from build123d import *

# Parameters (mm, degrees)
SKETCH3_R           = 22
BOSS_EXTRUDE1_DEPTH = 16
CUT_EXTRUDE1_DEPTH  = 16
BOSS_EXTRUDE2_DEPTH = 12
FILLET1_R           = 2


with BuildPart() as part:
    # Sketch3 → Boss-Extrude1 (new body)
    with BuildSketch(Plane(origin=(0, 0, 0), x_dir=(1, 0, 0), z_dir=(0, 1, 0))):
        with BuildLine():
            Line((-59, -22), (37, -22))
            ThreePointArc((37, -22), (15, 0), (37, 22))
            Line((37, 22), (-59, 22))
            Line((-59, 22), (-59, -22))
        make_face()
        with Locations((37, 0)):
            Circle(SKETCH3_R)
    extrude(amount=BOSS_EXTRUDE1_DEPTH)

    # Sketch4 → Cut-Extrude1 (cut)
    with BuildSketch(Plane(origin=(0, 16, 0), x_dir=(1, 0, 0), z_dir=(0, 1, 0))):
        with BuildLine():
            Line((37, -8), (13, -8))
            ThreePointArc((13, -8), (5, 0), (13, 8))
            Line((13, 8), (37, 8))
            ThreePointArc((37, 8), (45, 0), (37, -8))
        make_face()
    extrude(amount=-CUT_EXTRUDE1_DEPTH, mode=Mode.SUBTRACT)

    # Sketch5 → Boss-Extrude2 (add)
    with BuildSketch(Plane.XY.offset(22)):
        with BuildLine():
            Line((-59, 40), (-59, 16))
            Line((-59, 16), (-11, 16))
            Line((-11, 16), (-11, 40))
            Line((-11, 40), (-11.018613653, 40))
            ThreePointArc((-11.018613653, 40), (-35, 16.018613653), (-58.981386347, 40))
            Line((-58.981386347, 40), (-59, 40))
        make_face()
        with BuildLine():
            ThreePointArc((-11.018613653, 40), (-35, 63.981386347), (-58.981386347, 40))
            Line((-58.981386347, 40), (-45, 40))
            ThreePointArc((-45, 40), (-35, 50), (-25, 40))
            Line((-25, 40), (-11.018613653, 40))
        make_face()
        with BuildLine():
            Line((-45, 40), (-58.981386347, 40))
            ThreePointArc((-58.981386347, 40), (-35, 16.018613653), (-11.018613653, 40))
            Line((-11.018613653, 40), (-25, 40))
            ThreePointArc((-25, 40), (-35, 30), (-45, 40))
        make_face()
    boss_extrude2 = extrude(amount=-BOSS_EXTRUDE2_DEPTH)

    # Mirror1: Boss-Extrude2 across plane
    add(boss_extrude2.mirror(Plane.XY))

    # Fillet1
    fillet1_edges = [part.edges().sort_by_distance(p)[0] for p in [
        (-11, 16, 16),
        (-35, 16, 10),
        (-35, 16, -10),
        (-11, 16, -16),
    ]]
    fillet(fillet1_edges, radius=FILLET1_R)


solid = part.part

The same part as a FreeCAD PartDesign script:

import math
import FreeCAD as App
import Part
import Sketcher

V = App.Vector


def edges_at(feature, points):
    """Names of the edges that pass closest to the given points."""
    edges = feature.Shape.Edges
    near = lambda p: min(range(len(edges)), key=lambda i: edges[i].distToShape(Part.Vertex(*p))[0])
    return sorted({f"Edge{near(p) + 1}" for p in points})

doc = App.newDocument("Part")
body = doc.addObject("PartDesign::Body", "Body")

# Sketch on XZ plane
sketch1 = doc.addObject("Sketcher::SketchObject", "Sketch")
body.addObject(sketch1)
sketch1.AttachmentSupport = (doc.XZ_Plane, [""])
sketch1.MapMode = "FlatFace"
sketch1.addGeometry([
    Part.LineSegment(V(-59, 22, 0), V(37, 22, 0)),
    Part.ArcOfCircle(Part.Circle(V(37, 0, 0), V(0, 0, 1), 22), math.radians(-90), math.radians(90)),
    Part.LineSegment(V(37, -22, 0), V(-59, -22, 0)),
    Part.LineSegment(V(-59, -22, 0), V(-59, 22, 0)),
], False)
sketch1.addConstraint([
    Sketcher.Constraint("Tangent", 0, 2, 1, 2),
    Sketcher.Constraint("Tangent", 1, 1, 2, 1),
    Sketcher.Constraint("Coincident", 2, 2, 3, 1),
    Sketcher.Constraint("Coincident", 3, 2, 0, 1),
    Sketcher.Constraint("Horizontal", 0),
    Sketcher.Constraint("Horizontal", 2),
    Sketcher.Constraint("Vertical", 3),
    Sketcher.Constraint("PointOnObject", 1, 3, -1),
    Sketcher.Constraint("Radius", 1, 22.0),
    Sketcher.Constraint("DistanceX", 0, 1, 0, 2, 96.0),
    Sketcher.Constraint("DistanceX", -1, 1, 1, 3, 37.0),
])
pad1 = doc.addObject("PartDesign::Pad", "Pad")
body.addObject(pad1)
pad1.Profile = sketch1
pad1.Length = 16
pad1.Reversed = True

# Sketch on XZ plane
sketch2 = doc.addObject("Sketcher::SketchObject", "Sketch001")
body.addObject(sketch2)
sketch2.AttachmentSupport = (doc.XZ_Plane, [""])
sketch2.MapMode = "FlatFace"
sketch2.AttachmentOffset = App.Placement(V(0, 0, -16), App.Rotation())
sketch2.addGeometry([
    Part.LineSegment(V(13, 8, 0), V(37, 8, 0)),
    Part.ArcOfCircle(Part.Circle(V(37, 0, 0), V(0, 0, 1), 8), math.radians(-90), math.radians(90)),
    Part.LineSegment(V(37, -8, 0), V(13, -8, 0)),
    Part.ArcOfCircle(Part.Circle(V(13, 0, 0), V(0, 0, 1), 8), math.radians(90), math.radians(270)),
], False)
sketch2.addConstraint([
    Sketcher.Constraint("Tangent", 0, 2, 1, 2),
    Sketcher.Constraint("Tangent", 1, 1, 2, 1),
    Sketcher.Constraint("Tangent", 2, 2, 3, 2),
    Sketcher.Constraint("Tangent", 3, 1, 0, 1),
    Sketcher.Constraint("Horizontal", 0),
    Sketcher.Constraint("Horizontal", 2),
    Sketcher.Constraint("PointOnObject", 1, 3, -1),
    Sketcher.Constraint("Radius", 1, 8.0),
    Sketcher.Constraint("DistanceX", 0, 1, 0, 2, 24.0),
    Sketcher.Constraint("DistanceX", -1, 1, 1, 3, 37.0),
])
pocket1 = doc.addObject("PartDesign::Pocket", "Pocket")
body.addObject(pocket1)
pocket1.Profile = sketch2
pocket1.Length = 16
pocket1.Reversed = True

# Sketch on XY plane
sketch3 = doc.addObject("Sketcher::SketchObject", "Sketch002")
body.addObject(sketch3)
sketch3.AttachmentSupport = (doc.XY_Plane, [""])
sketch3.MapMode = "FlatFace"
sketch3.AttachmentOffset = App.Placement(V(0, 0, 22), App.Rotation())
sketch3.addGeometry([
    Part.LineSegment(V(-11, 40, 0), V(-11.018614, 40, 0)),  # 0
    Part.ArcOfCircle(Part.Circle(V(-35, 40, 0), V(0, 0, 1), 23.981386), math.radians(0), math.radians(180)),  # 1
    Part.LineSegment(V(-58.981386, 40, 0), V(-59, 40, 0)),  # 2
    Part.LineSegment(V(-59, 40, 0), V(-59, 16, 0)),  # 3
    Part.LineSegment(V(-59, 16, 0), V(-11, 16, 0)),  # 4
    Part.LineSegment(V(-11, 16, 0), V(-11, 40, 0)),  # 5
    Part.Circle(V(-35, 40, 0), V(0, 0, 1), 10),  # 6
], False)
sketch3.addConstraint([
    Sketcher.Constraint("Coincident", 0, 2, 1, 1),
    Sketcher.Constraint("Coincident", 1, 2, 2, 1),
    Sketcher.Constraint("Coincident", 2, 2, 3, 1),
    Sketcher.Constraint("Coincident", 3, 2, 4, 1),
    Sketcher.Constraint("Coincident", 4, 2, 5, 1),
    Sketcher.Constraint("Coincident", 5, 2, 0, 1),
    Sketcher.Constraint("Horizontal", 0),
    Sketcher.Constraint("Horizontal", 2),
    Sketcher.Constraint("Vertical", 3),
    Sketcher.Constraint("Horizontal", 4),
    Sketcher.Constraint("Vertical", 5),
    Sketcher.Constraint("Coincident", 6, 3, 1, 3),
    Sketcher.Constraint("Horizontal", 6, 3, 0, 2),
    Sketcher.Constraint("Horizontal", 0, 2, 1, 2),
    Sketcher.Constraint("Equal", 0, 2),
    Sketcher.Constraint("Diameter", 6, 20.0),
    Sketcher.Constraint("DistanceX", 4, 1, 4, 2, 48.0),
    Sketcher.Constraint("DistanceY", 3, 2, 3, 1, 24.0),
    Sketcher.Constraint("DistanceX", 1, 3, -1, 1, 35.0),
    Sketcher.Constraint("DistanceY", -1, 1, 1, 3, 40.0),
    Sketcher.Constraint("Radius", 1, 23.981386),
])
pad2 = doc.addObject("PartDesign::Pad", "Pad001")
body.addObject(pad2)
pad2.Profile = sketch3
pad2.Length = 12
pad2.Reversed = True
doc.recompute()

mirrored = doc.addObject("PartDesign::Mirrored", "Mirrored")
body.addObject(mirrored)
mirrored.Originals = [pad2]
mirrored.MirrorPlane = (doc.XY_Plane, [""])
body.Tip = mirrored
doc.recompute()

fillet = doc.addObject("PartDesign::Fillet", "Fillet")
body.addObject(fillet)
fillet.Base = (mirrored, edges_at(mirrored, [
    (-11, 16, 16),
    (-35, 16, 10),
    (-35, 16, -10),
    (-11, 16, -16),
]))
fillet.Radius = 2

doc.recompute()
